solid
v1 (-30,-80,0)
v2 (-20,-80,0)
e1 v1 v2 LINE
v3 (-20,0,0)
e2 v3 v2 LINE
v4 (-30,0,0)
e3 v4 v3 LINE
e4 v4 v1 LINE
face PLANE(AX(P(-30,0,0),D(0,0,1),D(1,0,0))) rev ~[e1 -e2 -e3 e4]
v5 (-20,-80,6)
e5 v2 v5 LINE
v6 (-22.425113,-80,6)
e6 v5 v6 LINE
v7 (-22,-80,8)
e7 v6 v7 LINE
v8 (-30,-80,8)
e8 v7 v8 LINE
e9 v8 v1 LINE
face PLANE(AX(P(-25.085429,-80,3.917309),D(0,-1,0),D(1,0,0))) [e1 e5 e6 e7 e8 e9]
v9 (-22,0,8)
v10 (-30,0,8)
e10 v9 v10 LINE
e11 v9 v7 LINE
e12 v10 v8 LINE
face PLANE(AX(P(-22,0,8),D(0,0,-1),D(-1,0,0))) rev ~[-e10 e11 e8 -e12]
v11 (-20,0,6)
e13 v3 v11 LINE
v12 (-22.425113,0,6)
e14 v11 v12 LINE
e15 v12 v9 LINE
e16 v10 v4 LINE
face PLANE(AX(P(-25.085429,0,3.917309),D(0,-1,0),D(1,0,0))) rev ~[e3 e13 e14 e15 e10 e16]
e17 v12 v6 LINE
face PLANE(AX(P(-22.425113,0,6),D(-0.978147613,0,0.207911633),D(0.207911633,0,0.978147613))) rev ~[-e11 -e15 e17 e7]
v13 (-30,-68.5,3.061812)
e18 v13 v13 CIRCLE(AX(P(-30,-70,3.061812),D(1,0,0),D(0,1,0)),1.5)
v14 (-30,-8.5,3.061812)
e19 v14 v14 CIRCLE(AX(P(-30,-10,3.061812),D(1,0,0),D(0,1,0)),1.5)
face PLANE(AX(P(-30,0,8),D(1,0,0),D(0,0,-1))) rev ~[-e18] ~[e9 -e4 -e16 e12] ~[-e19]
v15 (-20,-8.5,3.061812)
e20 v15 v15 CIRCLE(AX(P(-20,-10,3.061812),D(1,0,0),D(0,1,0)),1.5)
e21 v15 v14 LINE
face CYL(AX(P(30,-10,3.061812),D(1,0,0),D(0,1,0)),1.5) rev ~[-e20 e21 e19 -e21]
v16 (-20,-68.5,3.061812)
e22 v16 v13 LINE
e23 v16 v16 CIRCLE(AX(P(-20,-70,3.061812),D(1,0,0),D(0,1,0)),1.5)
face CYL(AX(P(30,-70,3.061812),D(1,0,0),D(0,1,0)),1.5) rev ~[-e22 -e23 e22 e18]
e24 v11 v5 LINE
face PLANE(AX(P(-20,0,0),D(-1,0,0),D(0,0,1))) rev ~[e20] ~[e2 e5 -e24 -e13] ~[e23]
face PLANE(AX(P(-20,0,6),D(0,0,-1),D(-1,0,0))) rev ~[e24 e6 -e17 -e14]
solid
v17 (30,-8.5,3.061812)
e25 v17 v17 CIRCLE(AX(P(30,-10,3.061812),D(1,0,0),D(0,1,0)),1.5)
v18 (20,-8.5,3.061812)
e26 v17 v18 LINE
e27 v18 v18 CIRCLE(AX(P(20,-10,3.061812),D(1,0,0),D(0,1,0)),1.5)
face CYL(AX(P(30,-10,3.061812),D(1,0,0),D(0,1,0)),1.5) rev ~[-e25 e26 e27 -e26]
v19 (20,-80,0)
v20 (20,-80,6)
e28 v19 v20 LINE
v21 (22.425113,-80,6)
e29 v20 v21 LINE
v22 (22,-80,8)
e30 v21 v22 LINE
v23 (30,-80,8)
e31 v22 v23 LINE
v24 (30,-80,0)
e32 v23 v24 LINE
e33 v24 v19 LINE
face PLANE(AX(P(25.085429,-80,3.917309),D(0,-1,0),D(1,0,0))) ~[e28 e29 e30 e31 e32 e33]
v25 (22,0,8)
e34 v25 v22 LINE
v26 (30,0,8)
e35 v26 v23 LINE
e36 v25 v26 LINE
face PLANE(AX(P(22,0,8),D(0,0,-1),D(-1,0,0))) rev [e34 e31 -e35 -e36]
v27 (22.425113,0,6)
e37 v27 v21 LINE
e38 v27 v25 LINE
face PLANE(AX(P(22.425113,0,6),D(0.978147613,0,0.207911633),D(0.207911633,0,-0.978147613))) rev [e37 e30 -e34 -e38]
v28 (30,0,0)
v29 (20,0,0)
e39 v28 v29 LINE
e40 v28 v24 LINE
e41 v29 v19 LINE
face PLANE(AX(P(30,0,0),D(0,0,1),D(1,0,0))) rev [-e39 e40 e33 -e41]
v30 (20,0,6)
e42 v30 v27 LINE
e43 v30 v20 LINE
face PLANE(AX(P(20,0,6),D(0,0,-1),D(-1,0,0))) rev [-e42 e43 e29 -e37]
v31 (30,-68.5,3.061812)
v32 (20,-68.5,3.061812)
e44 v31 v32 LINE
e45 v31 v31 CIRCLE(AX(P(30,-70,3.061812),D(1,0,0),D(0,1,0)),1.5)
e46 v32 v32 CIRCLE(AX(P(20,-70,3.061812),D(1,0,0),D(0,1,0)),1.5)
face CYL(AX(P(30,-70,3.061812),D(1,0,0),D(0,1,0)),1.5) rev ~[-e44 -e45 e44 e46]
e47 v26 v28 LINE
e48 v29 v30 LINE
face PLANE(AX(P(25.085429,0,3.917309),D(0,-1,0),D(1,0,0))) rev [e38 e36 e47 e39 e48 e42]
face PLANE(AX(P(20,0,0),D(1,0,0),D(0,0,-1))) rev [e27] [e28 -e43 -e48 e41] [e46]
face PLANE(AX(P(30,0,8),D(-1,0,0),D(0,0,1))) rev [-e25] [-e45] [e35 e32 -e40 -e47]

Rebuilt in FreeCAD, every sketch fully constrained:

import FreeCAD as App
import Part
import Sketcher
from FreeCAD import Vector
Q = App.Units.Quantity

doc = App.newDocument("Part")
body = doc.addObject("PartDesign::Body", "Body")

sketch1 = body.newObject("Sketcher::SketchObject", "Sketch")
sketch1.AttachmentSupport = (doc.getObject("XZ_Plane"), [""])
sketch1.MapMode = "FlatFace"
sketch1.addGeometry([
    Part.LineSegment(Vector(-22, 8, 0), Vector(-30, 8, 0)),
    Part.LineSegment(Vector(-30, 8, 0), Vector(-30, 0, 0)),
    Part.LineSegment(Vector(-30, 0, 0), Vector(-20, 0, 0)),
    Part.LineSegment(Vector(-20, 0, 0), Vector(-20, 6, 0)),
    Part.LineSegment(Vector(-20, 6, 0), Vector(-22.4, 6, 0)),
    Part.LineSegment(Vector(-22.4, 6, 0), Vector(-22, 8, 0)),
], False)
sketch1.addConstraint([
    Sketcher.Constraint("Coincident", 0, 2, 1, 1),
    Sketcher.Constraint("Coincident", 1, 2, 2, 1),
    Sketcher.Constraint("Coincident", 2, 2, 3, 1),
    Sketcher.Constraint("Coincident", 3, 2, 4, 1),
    Sketcher.Constraint("Coincident", 4, 2, 5, 1),
    Sketcher.Constraint("Coincident", 5, 2, 0, 1),
    Sketcher.Constraint("Horizontal", 0),
    Sketcher.Constraint("Vertical", 1),
    Sketcher.Constraint("Horizontal", 2),
    Sketcher.Constraint("Vertical", 3),
    Sketcher.Constraint("Horizontal", 4),
    Sketcher.Constraint("PointOnObject", 1, 2, -1),
    Sketcher.Constraint("Equal", 0, 1),
    Sketcher.Constraint("DistanceX", 0, 2, 0, 1, 8.0),
    Sketcher.Constraint("DistanceX", 2, 1, 2, 2, 10.0),
    Sketcher.Constraint("DistanceY", 3, 1, 3, 2, 6.0),
    Sketcher.Constraint("Angle", 5, Q("78.000003 deg")),
    Sketcher.Constraint("DistanceX", 0, 2, -1, 1, 30.0),
])
pad1 = body.newObject("PartDesign::Pad", "Pad")
pad1.Profile = sketch1
pad1.Length = 80
body2 = doc.addObject("PartDesign::Body", "Body001")
doc.recompute()

mirroring = doc.addObject("Part::Mirroring", "Mirroring")
mirroring.Source = body
mirroring.Base = Vector(0, 0, 0)
mirroring.Normal = Vector(1, 0, 0)
body2.BaseFeature = mirroring
doc.recompute()
body3 = doc.addObject("PartDesign::Body", "Body002")
body3.AllowCompound = True

sketch2 = body3.newObject("Sketcher::SketchObject", "Sketch001")
sketch2.AttachmentSupport = (doc.getObject("YZ_Plane002"), [""])
sketch2.MapMode = "FlatFace"
sketch2.AttachmentOffset = App.Placement(Vector(0, 0, 30), App.Rotation())
sketch2.addGeometry([
    Part.Circle(Vector(-70, 3.1, 0), Vector(0, 0, 1), 1.5),
    Part.Circle(Vector(-10, 3.1, 0), Vector(0, 0, 1), 1.5),
], False)
sketch2.addConstraint([
    Sketcher.Constraint("Equal", 0, 1),
    Sketcher.Constraint("Horizontal", 0, 3, 1, 3),
    Sketcher.Constraint("Diameter", 0, 3.0),
    Sketcher.Constraint("DistanceX", 0, 3, -1, 1, 70.0),
    Sketcher.Constraint("DistanceX", 1, 3, -1, 1, 10.0),
    Sketcher.Constraint("DistanceY", -1, 1, 0, 3, 3.061812),
])
pad2 = body3.newObject("PartDesign::Pad", "Pad001")
pad2.Profile = sketch2
pad2.Length = 70
pad2.Reversed = True
doc.recompute()

body4 = doc.addObject("PartDesign::Body", "Body003")
body4.BaseFeature = body3
boolean = body.newObject("PartDesign::Boolean", "Boolean")
boolean.Type = "Cut"
boolean.addObjects([body4])
doc.recompute()

boolean2 = body2.newObject("PartDesign::Boolean", "Boolean001")
boolean2.Type = "Cut"
boolean2.addObjects([body3])
mirroring.Visibility = False

doc.recompute()
